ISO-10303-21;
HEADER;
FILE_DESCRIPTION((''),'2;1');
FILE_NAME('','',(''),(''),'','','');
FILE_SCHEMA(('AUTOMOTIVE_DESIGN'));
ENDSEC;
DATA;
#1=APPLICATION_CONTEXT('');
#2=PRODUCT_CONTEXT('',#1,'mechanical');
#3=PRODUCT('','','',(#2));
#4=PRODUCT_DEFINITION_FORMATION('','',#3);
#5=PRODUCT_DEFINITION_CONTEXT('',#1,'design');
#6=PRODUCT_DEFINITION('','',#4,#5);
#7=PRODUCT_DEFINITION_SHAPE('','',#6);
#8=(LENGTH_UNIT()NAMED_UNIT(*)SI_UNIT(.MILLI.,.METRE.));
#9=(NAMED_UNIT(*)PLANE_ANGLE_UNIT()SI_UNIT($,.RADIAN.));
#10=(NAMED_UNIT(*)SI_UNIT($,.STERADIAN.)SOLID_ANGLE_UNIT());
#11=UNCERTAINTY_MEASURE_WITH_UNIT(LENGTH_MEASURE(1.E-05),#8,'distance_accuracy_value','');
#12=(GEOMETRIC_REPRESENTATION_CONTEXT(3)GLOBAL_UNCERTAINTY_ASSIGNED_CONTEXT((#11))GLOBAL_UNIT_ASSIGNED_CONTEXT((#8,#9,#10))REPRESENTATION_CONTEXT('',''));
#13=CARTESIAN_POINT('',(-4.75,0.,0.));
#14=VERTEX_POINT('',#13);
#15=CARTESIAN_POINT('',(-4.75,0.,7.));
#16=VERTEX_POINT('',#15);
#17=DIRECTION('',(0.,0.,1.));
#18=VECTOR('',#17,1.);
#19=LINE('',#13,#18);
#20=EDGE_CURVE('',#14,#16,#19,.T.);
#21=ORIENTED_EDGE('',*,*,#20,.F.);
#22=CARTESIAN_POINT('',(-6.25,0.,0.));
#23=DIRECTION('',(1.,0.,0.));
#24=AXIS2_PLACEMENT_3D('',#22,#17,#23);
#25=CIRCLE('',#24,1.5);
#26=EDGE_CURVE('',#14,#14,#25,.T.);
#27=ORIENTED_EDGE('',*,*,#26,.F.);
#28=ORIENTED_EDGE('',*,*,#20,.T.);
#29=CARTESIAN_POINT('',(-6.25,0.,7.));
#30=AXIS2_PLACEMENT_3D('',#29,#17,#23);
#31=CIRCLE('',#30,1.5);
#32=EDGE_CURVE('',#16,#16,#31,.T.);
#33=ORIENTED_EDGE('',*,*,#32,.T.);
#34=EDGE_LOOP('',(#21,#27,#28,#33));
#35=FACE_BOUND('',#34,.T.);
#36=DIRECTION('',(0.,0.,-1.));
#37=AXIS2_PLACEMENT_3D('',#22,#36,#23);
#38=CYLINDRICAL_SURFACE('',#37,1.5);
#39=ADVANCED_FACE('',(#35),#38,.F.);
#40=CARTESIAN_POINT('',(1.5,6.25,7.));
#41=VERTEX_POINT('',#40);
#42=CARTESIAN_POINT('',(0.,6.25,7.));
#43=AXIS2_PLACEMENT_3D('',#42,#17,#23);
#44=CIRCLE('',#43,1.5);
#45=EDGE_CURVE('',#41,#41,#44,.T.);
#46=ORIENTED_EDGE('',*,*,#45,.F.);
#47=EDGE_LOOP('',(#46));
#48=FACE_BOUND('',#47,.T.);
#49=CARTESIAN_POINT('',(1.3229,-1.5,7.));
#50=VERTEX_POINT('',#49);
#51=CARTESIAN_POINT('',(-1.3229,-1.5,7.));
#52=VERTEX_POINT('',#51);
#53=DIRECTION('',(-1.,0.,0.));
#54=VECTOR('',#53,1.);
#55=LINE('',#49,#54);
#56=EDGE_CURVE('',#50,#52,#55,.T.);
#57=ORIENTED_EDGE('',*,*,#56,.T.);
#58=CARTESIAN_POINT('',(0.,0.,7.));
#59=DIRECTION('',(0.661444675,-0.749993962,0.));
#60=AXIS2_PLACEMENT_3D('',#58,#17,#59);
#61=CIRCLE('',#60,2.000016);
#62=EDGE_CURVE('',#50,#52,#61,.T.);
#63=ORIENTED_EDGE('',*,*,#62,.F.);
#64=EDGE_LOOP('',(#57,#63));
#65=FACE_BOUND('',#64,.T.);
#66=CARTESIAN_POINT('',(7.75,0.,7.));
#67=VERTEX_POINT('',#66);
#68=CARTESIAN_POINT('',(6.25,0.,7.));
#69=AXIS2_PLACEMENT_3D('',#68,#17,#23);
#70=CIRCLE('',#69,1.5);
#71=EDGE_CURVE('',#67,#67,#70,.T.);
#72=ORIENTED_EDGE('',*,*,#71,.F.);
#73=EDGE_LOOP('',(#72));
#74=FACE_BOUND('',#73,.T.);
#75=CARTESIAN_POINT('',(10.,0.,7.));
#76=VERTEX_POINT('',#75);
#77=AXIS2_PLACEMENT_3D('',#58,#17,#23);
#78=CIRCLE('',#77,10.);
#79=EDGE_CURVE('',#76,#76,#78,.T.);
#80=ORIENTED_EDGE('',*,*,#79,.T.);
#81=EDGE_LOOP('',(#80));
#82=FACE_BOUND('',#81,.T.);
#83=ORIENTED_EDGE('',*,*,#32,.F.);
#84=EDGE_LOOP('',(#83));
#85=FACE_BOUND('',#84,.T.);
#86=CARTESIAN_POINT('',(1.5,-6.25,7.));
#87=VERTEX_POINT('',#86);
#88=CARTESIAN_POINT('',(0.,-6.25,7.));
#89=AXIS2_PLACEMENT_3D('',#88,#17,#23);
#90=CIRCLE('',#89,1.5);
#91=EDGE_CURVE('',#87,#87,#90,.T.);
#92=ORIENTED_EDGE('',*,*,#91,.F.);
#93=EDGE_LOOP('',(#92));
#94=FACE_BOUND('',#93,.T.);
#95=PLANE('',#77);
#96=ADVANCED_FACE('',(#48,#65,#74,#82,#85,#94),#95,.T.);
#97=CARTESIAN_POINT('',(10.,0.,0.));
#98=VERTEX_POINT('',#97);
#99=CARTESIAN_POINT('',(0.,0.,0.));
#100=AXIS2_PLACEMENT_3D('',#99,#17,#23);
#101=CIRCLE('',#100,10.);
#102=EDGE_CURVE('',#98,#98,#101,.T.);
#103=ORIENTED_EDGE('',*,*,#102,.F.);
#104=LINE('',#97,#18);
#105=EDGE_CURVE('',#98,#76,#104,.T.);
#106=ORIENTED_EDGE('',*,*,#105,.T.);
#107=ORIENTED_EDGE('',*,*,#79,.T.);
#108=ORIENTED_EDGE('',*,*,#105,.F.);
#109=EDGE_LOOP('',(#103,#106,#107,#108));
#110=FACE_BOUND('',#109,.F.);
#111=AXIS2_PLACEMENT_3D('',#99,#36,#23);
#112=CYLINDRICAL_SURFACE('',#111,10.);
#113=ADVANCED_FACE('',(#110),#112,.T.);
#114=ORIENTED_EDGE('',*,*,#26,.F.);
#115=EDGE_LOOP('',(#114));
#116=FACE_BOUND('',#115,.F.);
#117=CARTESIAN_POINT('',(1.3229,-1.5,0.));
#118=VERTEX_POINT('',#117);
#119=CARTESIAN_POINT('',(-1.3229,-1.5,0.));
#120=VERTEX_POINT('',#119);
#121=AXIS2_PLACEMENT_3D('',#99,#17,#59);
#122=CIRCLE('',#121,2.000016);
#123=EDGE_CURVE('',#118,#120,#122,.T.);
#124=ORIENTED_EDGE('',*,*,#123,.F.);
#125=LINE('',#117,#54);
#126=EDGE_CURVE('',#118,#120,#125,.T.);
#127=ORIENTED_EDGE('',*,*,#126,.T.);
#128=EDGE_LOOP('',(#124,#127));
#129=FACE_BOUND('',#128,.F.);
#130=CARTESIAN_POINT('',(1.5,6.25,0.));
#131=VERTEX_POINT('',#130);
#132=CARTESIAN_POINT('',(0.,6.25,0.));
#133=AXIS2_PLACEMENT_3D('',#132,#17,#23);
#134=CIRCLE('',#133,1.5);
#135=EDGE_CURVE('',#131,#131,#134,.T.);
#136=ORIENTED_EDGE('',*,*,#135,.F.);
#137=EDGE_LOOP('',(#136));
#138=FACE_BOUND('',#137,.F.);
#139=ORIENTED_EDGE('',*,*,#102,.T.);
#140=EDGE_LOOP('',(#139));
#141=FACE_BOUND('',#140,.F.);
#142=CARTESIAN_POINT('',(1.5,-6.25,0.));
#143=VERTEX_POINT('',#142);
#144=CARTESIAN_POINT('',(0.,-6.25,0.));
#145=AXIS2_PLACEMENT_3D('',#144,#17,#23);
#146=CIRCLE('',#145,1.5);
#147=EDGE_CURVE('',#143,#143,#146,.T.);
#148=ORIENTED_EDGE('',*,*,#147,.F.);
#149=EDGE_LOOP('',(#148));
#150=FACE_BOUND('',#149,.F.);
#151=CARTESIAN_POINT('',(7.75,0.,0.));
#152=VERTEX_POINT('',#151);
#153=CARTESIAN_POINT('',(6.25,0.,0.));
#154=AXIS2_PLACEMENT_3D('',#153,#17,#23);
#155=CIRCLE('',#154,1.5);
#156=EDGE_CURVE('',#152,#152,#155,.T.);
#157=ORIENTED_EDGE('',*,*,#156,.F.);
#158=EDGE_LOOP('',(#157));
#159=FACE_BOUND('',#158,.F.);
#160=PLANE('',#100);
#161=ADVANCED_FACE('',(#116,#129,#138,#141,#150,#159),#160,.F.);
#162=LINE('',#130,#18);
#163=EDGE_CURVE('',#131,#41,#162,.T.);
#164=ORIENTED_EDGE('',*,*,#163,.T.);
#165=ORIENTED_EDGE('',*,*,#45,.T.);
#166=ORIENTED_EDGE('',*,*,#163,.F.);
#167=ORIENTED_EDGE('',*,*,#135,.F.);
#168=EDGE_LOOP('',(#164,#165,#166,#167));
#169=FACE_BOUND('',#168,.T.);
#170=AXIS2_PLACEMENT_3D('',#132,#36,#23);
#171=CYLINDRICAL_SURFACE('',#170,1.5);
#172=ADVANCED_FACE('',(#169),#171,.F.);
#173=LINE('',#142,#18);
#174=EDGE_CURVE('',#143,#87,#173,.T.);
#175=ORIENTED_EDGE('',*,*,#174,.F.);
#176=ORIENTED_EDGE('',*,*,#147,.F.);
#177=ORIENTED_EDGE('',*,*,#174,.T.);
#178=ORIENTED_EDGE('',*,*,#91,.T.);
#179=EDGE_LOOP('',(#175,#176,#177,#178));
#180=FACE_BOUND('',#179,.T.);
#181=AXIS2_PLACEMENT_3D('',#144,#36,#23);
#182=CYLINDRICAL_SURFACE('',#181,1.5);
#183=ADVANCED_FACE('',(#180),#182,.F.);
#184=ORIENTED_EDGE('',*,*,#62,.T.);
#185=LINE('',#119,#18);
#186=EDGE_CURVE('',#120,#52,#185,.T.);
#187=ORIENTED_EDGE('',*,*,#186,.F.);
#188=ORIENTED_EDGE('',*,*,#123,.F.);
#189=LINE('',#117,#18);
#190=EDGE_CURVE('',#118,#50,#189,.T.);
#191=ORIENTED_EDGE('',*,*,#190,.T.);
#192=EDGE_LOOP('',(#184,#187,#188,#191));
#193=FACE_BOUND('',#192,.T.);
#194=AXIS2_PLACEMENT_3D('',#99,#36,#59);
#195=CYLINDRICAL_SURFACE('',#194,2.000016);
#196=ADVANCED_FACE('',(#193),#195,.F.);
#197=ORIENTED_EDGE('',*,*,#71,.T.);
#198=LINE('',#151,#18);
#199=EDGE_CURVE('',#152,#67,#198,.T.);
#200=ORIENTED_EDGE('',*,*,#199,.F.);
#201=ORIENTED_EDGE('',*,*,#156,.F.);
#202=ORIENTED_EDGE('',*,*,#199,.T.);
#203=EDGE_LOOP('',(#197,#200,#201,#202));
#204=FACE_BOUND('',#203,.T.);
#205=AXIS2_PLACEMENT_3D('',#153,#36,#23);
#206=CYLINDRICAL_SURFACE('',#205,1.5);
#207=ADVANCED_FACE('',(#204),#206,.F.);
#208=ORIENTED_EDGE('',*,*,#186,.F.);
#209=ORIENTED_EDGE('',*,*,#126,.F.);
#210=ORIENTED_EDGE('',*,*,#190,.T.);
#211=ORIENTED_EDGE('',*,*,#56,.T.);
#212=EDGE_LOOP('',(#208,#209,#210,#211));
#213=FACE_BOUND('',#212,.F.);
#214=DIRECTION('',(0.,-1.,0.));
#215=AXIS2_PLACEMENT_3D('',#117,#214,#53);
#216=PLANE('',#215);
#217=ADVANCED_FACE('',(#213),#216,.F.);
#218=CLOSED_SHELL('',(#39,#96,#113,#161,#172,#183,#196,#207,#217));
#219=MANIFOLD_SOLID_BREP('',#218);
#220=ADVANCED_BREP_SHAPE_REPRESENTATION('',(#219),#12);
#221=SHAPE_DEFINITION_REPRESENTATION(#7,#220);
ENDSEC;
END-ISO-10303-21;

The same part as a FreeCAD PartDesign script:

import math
import FreeCAD as App
import Part
import Sketcher

doc = App.newDocument("Part")
body = doc.addObject("PartDesign::Body", "Body")

# Sketch on XY plane
sketch1 = doc.addObject("Sketcher::SketchObject", "Sketch")
body.addObject(sketch1)
sketch1.AttachmentSupport = (doc.XY_Plane, [""])
sketch1.MapMode = "FlatFace"
sketch1.addGeometry(Part.Circle(App.Vector(0, 0, 0), App.Vector(0, 0, 1), 10), False)
sketch1.addGeometry(Part.Circle(App.Vector(0, -6.2, 0), App.Vector(0, 0, 1), 1.5), False)
sketch1.addGeometry(Part.Circle(App.Vector(-6.2, 0, 0), App.Vector(0, 0, 1), 1.5), False)
sketch1.addGeometry(Part.ArcOfCircle(Part.Circle(App.Vector(0, 0, 0), App.Vector(0, 0, 1), 2), math.radians(-49), math.radians(229)), False)
sketch1.addGeometry(Part.LineSegment(App.Vector(1.3, -1.5, 0), App.Vector(-1.3, -1.5, 0)), False)
sketch1.addGeometry(Part.Circle(App.Vector(6.2, 0, 0), App.Vector(0, 0, 1), 1.5), False)
sketch1.addGeometry(Part.Circle(App.Vector(0, 6.2, 0), App.Vector(0, 0, 1), 1.5), False)
sketch1.addConstraint(Sketcher.Constraint("Coincident", 3, 1, 4, 1))
sketch1.addConstraint(Sketcher.Constraint("Coincident", 4, 2, 3, 2))
sketch1.addConstraint(Sketcher.Constraint("Horizontal", 4))
sketch1.addConstraint(Sketcher.Constraint("Coincident", 0, 3, -1, 1))
sketch1.addConstraint(Sketcher.Constraint("Coincident", 3, 3, -1, 1))
sketch1.addConstraint(Sketcher.Constraint("Equal", 1, 2))
sketch1.addConstraint(Sketcher.Constraint("Equal", 2, 5))
sketch1.addConstraint(Sketcher.Constraint("Equal", 5, 6))
sketch1.addConstraint(Sketcher.Constraint("Symmetric", 2, 3, 5, 3, -1, 1))
sketch1.addConstraint(Sketcher.Constraint("Symmetric", 1, 3, 6, 3, -1, 1))
sketch1.addConstraint(Sketcher.Constraint("PointOnObject", 1, 3, -2))
sketch1.addConstraint(Sketcher.Constraint("PointOnObject", 2, 3, -1))
sketch1.addConstraint(Sketcher.Constraint("Diameter", 0, 20.0))
sketch1.addConstraint(Sketcher.Constraint("Diameter", 1, 3.0))
sketch1.addConstraint(Sketcher.Constraint("Radius", 3, 2.0))
sketch1.addConstraint(Sketcher.Constraint("DistanceY", 3, 1, -1, 1, 1.5))
sketch1.addConstraint(Sketcher.Constraint("DistanceY", 1, 3, -1, 1, 6.25))
sketch1.addConstraint(Sketcher.Constraint("DistanceX", 2, 3, -1, 1, 6.25))
pad1 = doc.addObject("PartDesign::Pad", "Pad")
body.addObject(pad1)
pad1.Profile = sketch1
pad1.Length = 7

doc.recompute()
